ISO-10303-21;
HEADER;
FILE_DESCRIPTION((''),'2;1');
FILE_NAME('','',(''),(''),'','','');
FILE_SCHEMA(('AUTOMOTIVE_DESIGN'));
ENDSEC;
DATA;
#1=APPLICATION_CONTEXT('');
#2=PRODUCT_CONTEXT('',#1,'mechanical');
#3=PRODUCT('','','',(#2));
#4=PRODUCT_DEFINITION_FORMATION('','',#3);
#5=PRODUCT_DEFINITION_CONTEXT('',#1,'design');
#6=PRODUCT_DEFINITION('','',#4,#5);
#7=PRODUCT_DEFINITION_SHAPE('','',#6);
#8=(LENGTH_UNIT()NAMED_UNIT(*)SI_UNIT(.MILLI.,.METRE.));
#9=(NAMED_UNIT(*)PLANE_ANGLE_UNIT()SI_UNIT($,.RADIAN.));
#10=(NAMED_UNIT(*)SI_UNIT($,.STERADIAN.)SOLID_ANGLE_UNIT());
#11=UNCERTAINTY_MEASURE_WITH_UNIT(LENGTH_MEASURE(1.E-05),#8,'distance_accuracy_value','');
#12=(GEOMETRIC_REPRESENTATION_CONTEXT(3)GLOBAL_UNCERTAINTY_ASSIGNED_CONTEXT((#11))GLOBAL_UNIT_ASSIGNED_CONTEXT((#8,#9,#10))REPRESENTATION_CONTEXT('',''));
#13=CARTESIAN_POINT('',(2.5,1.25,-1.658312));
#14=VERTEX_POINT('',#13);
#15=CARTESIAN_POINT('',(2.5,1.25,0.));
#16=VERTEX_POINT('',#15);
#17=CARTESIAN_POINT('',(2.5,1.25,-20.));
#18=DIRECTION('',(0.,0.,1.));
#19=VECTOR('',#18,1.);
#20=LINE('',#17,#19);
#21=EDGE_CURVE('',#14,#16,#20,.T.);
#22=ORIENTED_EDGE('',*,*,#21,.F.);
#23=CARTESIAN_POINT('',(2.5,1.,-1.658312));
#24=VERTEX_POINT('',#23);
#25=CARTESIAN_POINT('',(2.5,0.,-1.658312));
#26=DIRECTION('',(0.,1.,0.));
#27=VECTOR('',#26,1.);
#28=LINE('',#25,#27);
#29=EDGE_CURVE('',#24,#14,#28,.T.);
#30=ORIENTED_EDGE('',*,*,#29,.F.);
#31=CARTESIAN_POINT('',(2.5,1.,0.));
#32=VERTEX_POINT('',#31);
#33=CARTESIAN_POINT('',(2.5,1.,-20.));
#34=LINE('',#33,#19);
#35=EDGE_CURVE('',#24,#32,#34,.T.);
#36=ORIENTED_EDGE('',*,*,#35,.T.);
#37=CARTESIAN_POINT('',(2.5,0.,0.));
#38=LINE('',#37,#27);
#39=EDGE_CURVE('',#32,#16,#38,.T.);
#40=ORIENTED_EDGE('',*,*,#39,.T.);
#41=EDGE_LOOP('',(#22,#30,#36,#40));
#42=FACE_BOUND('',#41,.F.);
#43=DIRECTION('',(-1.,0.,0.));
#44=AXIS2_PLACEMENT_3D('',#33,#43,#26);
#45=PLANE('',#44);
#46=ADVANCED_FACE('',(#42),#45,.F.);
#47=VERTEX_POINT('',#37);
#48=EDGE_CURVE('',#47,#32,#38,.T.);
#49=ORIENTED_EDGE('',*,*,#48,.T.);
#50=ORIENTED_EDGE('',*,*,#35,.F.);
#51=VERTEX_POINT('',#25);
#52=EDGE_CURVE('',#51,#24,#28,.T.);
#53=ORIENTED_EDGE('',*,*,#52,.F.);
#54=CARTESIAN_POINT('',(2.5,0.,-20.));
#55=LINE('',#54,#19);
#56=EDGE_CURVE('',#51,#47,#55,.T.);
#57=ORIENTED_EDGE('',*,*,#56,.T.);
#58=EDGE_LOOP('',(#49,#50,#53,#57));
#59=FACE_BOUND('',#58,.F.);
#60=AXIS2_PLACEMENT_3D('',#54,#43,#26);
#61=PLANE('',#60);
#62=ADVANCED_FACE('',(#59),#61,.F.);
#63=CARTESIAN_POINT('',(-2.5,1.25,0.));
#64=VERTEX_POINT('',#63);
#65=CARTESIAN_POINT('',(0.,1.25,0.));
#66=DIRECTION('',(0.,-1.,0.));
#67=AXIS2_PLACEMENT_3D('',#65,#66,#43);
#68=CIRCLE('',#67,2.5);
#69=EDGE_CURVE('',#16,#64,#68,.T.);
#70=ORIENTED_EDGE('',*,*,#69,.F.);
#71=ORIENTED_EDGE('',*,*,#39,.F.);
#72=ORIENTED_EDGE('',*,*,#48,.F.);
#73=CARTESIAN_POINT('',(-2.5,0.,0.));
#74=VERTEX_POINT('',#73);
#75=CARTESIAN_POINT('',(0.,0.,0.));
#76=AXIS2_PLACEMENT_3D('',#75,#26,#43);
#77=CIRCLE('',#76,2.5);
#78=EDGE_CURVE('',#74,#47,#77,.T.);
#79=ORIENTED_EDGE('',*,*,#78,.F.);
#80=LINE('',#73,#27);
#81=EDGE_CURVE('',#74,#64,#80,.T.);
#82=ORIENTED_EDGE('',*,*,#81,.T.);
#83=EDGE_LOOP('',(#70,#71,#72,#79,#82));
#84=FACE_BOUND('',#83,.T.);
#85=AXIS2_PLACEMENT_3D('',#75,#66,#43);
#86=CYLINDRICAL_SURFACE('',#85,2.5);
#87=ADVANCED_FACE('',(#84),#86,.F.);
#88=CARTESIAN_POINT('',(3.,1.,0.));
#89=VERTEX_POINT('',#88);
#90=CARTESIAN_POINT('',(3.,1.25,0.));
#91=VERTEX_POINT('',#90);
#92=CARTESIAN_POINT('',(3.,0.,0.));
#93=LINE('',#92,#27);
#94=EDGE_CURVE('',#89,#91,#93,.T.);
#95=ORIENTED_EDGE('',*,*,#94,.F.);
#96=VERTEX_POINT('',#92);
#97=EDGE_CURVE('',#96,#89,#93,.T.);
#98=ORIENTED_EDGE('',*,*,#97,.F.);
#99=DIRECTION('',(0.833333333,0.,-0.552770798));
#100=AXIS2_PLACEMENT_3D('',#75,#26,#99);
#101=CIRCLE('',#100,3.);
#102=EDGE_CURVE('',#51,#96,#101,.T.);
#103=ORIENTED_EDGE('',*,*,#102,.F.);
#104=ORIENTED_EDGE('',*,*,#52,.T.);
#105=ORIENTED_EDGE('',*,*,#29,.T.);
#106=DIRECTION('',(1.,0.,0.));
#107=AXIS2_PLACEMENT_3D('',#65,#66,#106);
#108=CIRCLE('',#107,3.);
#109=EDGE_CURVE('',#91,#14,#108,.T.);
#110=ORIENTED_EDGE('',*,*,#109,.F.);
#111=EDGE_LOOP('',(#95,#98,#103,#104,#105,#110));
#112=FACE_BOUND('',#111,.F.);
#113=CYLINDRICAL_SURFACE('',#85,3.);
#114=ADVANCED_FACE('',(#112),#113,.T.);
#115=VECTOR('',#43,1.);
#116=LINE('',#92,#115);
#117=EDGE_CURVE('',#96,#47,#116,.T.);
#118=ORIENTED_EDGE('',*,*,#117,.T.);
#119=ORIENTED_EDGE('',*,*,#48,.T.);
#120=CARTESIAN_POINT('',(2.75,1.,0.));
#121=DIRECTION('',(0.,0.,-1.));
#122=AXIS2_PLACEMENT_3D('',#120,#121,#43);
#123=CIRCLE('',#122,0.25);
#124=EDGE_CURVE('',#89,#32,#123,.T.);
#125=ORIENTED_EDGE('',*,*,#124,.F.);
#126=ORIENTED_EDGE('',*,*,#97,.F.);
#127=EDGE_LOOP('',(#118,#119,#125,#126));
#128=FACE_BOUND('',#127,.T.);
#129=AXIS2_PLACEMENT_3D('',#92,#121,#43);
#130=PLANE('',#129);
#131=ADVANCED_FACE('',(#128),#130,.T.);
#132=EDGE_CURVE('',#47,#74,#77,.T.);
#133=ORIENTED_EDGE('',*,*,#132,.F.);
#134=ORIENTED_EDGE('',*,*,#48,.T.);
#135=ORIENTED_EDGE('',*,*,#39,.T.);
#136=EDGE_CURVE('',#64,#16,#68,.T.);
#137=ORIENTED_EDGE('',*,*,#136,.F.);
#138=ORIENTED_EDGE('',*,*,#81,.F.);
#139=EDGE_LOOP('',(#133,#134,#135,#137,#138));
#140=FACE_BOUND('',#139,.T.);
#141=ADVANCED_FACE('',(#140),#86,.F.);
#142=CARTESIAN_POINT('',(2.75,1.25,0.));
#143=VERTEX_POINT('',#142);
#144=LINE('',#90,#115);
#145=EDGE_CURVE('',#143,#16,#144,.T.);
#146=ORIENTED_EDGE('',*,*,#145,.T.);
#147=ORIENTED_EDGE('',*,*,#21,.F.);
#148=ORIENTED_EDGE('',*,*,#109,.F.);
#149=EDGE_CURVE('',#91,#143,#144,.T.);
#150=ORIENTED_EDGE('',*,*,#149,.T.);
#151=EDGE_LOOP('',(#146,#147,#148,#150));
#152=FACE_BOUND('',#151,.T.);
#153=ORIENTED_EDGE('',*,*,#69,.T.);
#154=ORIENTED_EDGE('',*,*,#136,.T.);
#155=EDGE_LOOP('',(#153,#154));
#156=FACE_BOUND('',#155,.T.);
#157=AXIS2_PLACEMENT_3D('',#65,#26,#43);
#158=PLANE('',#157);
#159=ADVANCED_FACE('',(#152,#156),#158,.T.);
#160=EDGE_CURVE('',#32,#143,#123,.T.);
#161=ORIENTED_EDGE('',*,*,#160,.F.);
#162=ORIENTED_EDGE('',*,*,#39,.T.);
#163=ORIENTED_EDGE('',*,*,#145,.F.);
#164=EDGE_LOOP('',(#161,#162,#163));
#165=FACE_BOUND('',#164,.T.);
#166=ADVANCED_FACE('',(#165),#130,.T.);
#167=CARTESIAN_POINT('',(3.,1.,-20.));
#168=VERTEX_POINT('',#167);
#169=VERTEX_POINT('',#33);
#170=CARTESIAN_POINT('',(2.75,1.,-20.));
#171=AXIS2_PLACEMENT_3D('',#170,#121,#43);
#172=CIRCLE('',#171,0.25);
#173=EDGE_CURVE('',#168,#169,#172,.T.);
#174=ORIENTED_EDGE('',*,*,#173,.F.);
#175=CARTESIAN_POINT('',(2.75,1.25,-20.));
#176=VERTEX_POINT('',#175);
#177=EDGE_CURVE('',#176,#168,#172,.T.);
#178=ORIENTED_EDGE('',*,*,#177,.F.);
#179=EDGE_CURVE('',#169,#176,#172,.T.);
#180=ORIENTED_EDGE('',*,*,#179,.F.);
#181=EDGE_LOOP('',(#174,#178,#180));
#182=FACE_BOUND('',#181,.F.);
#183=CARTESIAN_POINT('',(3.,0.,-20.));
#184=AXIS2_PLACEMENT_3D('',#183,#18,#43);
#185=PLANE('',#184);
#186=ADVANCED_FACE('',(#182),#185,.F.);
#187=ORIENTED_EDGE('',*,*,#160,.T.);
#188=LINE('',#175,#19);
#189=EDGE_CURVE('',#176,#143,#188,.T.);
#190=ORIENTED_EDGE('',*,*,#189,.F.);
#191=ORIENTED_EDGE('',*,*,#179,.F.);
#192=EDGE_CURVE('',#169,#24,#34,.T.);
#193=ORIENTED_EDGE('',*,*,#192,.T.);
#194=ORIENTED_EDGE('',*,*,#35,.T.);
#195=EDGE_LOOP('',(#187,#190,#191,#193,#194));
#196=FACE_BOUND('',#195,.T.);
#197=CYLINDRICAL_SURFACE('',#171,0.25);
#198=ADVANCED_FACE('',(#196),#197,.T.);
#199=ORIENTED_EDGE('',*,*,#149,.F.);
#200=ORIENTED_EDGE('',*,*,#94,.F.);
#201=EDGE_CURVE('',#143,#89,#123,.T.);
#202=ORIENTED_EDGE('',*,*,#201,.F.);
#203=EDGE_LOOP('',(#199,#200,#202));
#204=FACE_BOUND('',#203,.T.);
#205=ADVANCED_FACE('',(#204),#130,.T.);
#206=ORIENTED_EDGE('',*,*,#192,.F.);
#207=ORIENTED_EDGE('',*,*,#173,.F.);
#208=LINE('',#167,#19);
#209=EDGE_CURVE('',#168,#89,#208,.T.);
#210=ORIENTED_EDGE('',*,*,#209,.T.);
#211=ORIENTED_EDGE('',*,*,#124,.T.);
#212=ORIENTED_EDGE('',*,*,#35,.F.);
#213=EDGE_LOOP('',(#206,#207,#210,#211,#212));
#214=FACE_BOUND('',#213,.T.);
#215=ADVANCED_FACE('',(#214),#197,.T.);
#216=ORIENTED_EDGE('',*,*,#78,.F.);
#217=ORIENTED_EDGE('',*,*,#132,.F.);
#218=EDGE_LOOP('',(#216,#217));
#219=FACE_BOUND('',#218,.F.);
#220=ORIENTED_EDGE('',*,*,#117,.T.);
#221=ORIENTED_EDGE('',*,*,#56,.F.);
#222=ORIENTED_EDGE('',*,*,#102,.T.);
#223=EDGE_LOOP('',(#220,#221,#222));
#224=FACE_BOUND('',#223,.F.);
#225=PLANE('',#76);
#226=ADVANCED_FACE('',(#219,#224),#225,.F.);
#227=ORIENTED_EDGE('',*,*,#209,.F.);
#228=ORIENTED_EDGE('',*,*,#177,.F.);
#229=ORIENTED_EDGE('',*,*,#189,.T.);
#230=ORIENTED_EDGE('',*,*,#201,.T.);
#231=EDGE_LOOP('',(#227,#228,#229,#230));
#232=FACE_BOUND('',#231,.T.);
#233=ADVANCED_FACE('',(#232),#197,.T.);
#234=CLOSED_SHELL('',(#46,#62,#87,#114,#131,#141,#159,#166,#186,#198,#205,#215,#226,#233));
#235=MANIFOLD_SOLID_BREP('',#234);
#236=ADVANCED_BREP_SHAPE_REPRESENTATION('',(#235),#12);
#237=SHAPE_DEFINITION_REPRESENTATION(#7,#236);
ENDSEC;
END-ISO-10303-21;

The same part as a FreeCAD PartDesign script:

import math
import FreeCAD as App
import Part
import Sketcher

V = App.Vector

doc = App.newDocument("Part")
body = doc.addObject("PartDesign::Body", "Body")

# Sketch on XZ plane
sketch1 = doc.addObject("Sketcher::SketchObject", "Sketch")
body.addObject(sketch1)
sketch1.AttachmentSupport = (doc.XZ_Plane, [""])
sketch1.MapMode = "FlatFace"
sketch1.addGeometry([
    Part.LineSegment(V(3, 0, 0), V(3, -20, 0)),  # 0
    Part.LineSegment(V(3, -20, 0), V(2.5, -20, 0)),  # 1
    Part.LineSegment(V(2.5, -20, 0), V(2.5, -1.7, 0)),  # 2
    Part.ArcOfCircle(Part.Circle(V(0, 0, 0), V(0, 0, 1), 3), math.radians(0), math.radians(326)),  # 3
    Part.Circle(V(0, 0, 0), V(0, 0, 1), 2.5),  # 4
], False)
sketch1.addConstraint([
    Sketcher.Constraint("Coincident", 0, 2, 1, 1),
    Sketcher.Constraint("Coincident", 1, 2, 2, 1),
    Sketcher.Constraint("Coincident", 2, 2, 3, 2),
    Sketcher.Constraint("Tangent", 3, 1, 0, 1),
    Sketcher.Constraint("Vertical", 0),
    Sketcher.Constraint("Horizontal", 1),
    Sketcher.Constraint("Vertical", 2),
    Sketcher.Constraint("Coincident", 3, 3, -1, 1),
    Sketcher.Constraint("Coincident", 4, 3, -1, 1),
    Sketcher.Constraint("Diameter", 4, 5.0),
    Sketcher.Constraint("Radius", 3, 3.0),
    Sketcher.Constraint("DistanceY", 0, 2, 0, 1, 20.0),
    Sketcher.Constraint("DistanceX", 1, 2, 1, 1, 0.5),
])
pad1 = doc.addObject("PartDesign::Pad", "Pad")
body.addObject(pad1)
pad1.Profile = sketch1
pad1.Length = 1.25
pad1.Reversed = True

# Sketch on XY plane
sketch2 = doc.addObject("Sketcher::SketchObject", "Sketch001")
body.addObject(sketch2)
sketch2.AttachmentSupport = (doc.XY_Plane, [""])
sketch2.MapMode = "FlatFace"
sketch2.AttachmentOffset = App.Placement(V(0, 0, -20), App.Rotation())
sketch2.addGeometry([
    Part.LineSegment(V(3, 1, 0), V(3, 0, 0)),  # 0
    Part.LineSegment(V(3, 0, 0), V(2.5, 0, 0)),  # 1
    Part.LineSegment(V(2.5, 0, 0), V(2.5, 1, 0)),  # 2
    Part.ArcOfCircle(Part.Circle(V(2.75, 1, 0), V(0, 0, 1), 0.25), math.radians(180), math.radians(360)),  # 3
    Part.LineSegment(V(3, 1.25, 0), V(3, 1, 0)),  # 4
    Part.ArcOfCircle(Part.Circle(V(2.75, 1, 0), V(0, 0, 1), 0.25), math.radians(0), math.radians(90)),  # 5
    Part.LineSegment(V(2.75, 1.25, 0), V(3, 1.25, 0)),  # 6
    Part.ArcOfCircle(Part.Circle(V(2.75, 1, 0), V(0, 0, 1), 0.25), math.radians(90), math.radians(180)),  # 7
    Part.LineSegment(V(2.5, 1, 0), V(2.5, 1.25, 0)),  # 8
    Part.LineSegment(V(2.5, 1.25, 0), V(2.75, 1.25, 0)),  # 9
], False)
sketch2.addConstraint([
    Sketcher.Constraint("Coincident", 0, 2, 1, 1),
    Sketcher.Constraint("Coincident", 1, 2, 2, 1),
    Sketcher.Constraint("Tangent", 2, 2, 3, 1),
    Sketcher.Constraint("Tangent", 3, 2, 0, 1),
    Sketcher.Constraint("Tangent", 4, 2, 5, 1),
    Sketcher.Constraint("Tangent", 5, 2, 6, 1),
    Sketcher.Constraint("Coincident", 6, 2, 4, 1),
    Sketcher.Constraint("Tangent", 7, 2, 8, 1),
    Sketcher.Constraint("Coincident", 8, 2, 9, 1),
    Sketcher.Constraint("Tangent", 9, 2, 7, 1),
    Sketcher.Constraint("Vertical", 0),
    Sketcher.Constraint("Horizontal", 1),
    Sketcher.Constraint("Vertical", 2),
    Sketcher.Constraint("Vertical", 4),
    Sketcher.Constraint("Horizontal", 6),
    Sketcher.Constraint("Vertical", 8),
    Sketcher.Constraint("Horizontal", 9),
    Sketcher.Constraint("Coincident", 5, 3, 3, 3),
    Sketcher.Constraint("Coincident", 7, 3, 3, 3),
    Sketcher.Constraint("Equal", 3, 5),
    Sketcher.Constraint("Equal", 5, 7),
    Sketcher.Constraint("PointOnObject", 0, 2, -1),
    Sketcher.Constraint("DistanceY", 0, 2, 0, 1, 1.0),
    Sketcher.Constraint("Radius", 3, 0.25),
    Sketcher.Constraint("DistanceX", -1, 1, 0, 2, 3.0),
])
pocket1 = doc.addObject("PartDesign::Pocket", "Pocket")
body.addObject(pocket1)
pocket1.Profile = sketch2
pocket1.Length = 20
pocket1.Reversed = True

doc.recompute()
